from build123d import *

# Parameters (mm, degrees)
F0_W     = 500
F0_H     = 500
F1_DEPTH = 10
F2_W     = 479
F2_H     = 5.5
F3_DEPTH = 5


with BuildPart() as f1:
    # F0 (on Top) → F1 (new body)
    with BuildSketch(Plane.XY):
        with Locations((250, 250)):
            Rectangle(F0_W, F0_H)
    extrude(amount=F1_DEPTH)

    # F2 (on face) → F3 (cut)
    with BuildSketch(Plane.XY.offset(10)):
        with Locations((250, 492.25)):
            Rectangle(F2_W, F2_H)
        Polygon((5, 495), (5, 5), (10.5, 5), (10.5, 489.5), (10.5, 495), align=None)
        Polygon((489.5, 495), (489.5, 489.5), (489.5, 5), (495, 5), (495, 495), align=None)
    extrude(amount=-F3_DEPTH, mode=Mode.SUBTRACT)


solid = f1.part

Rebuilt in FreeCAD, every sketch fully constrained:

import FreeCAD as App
import Part
import Sketcher

V = App.Vector


def add_polygon(sketch, points):
    """Adds a closed chain of lines whose ends are joined by coincident constraints."""
    first, n = sketch.GeometryCount, len(points)
    for a, b in zip(points, points[1:] + points[:1]):
        sketch.addGeometry(Part.LineSegment(App.Vector(*a, 0), App.Vector(*b, 0)), False)
    for i in range(n):
        sketch.addConstraint(Sketcher.Constraint("Coincident", first + i, 2, first + (i + 1) % n, 1))

doc = App.newDocument("Part")
params = doc.addObject("Spreadsheet::Sheet", "Params")
for row, (alias, value) in enumerate([
    ("sketch1_width", "500 mm"),
    ("pad1_length", "10 mm"),
    ("sketch2_width", "479 mm"),
    ("sketch2_width2", "490 mm"),
    ("sketch2_height", "484.5 mm"),
    ("pocket1_length", "5 mm"),
], start=1):
    params.set(f"A{row}", alias)
    params.set(f"B{row}", "=" + value)
    params.setAlias(f"B{row}", alias)

body = doc.addObject("PartDesign::Body", "Body")

# Sketch on XY plane
sketch1 = doc.addObject("Sketcher::SketchObject", "Sketch")
body.addObject(sketch1)
sketch1.AttachmentSupport = (doc.XY_Plane, [""])
sketch1.MapMode = "FlatFace"
add_polygon(sketch1, [(0, 500), (0, 0), (500, 0), (500, 500)])  # lines 0-3
sketch1.addConstraint([
    Sketcher.Constraint("Vertical", 0),
    Sketcher.Constraint("Horizontal", 1),
    Sketcher.Constraint("Vertical", 2),
    Sketcher.Constraint("Horizontal", 3),
    Sketcher.Constraint("Coincident", 0, 2, -1, 1),
    Sketcher.Constraint("Equal", 3, 0),
    Sketcher.Constraint("DistanceX", 1, 1, 1, 2, 500.0),
])
sketch1.setExpression("Constraints[10]", "Params.sketch1_width")
pad1 = doc.addObject("PartDesign::Pad", "Pad")
body.addObject(pad1)
pad1.Profile = sketch1
pad1.setExpression("Length", "Params.pad1_length")

# Sketch on XY plane
sketch2 = doc.addObject("Sketcher::SketchObject", "Sketch001")
body.addObject(sketch2)
sketch2.AttachmentSupport = (doc.XY_Plane, [""])
sketch2.MapMode = "FlatFace"
sketch2.AttachmentOffset = App.Placement(V(0, 0, 10), App.Rotation())
add_polygon(sketch2, [(10, 490), (490, 490), (490, 5), (495, 5), (495, 495), (5, 495), (5, 5), (10, 5)])  # lines 0-7
sketch2.addConstraint([
    Sketcher.Constraint("Horizontal", 0),
    Sketcher.Constraint("Vertical", 1),
    Sketcher.Constraint("Horizontal", 2),
    Sketcher.Constraint("Vertical", 3),
    Sketcher.Constraint("Horizontal", 4),
    Sketcher.Constraint("Vertical", 5),
    Sketcher.Constraint("Horizontal", 6),
    Sketcher.Constraint("Vertical", 7),
    Sketcher.Constraint("Horizontal", 2, 2, 5, 2),
    Sketcher.Constraint("Equal", 2, 6),
    Sketcher.Constraint("Equal", 4, 3),
    Sketcher.Constraint("DistanceX", 0, 1, 0, 2, 479.0),
    Sketcher.Constraint("DistanceX", 4, 2, 4, 1, 490.0),
    Sketcher.Constraint("DistanceY", 1, 2, 1, 1, 484.5),
    Sketcher.Constraint("DistanceY", -1, 1, 1, 2, 5.0),
    Sketcher.Constraint("DistanceX", -1, 1, 2, 2, 495.0),
])
sketch2.setExpression("Constraints[19]", "Params.sketch2_width")
sketch2.setExpression("Constraints[20]", "Params.sketch2_width2")
sketch2.setExpression("Constraints[21]", "Params.sketch2_height")
pocket1 = doc.addObject("PartDesign::Pocket", "Pocket")
body.addObject(pocket1)
pocket1.Profile = sketch2
pocket1.setExpression("Length", "Params.pocket1_length")

doc.recompute()
